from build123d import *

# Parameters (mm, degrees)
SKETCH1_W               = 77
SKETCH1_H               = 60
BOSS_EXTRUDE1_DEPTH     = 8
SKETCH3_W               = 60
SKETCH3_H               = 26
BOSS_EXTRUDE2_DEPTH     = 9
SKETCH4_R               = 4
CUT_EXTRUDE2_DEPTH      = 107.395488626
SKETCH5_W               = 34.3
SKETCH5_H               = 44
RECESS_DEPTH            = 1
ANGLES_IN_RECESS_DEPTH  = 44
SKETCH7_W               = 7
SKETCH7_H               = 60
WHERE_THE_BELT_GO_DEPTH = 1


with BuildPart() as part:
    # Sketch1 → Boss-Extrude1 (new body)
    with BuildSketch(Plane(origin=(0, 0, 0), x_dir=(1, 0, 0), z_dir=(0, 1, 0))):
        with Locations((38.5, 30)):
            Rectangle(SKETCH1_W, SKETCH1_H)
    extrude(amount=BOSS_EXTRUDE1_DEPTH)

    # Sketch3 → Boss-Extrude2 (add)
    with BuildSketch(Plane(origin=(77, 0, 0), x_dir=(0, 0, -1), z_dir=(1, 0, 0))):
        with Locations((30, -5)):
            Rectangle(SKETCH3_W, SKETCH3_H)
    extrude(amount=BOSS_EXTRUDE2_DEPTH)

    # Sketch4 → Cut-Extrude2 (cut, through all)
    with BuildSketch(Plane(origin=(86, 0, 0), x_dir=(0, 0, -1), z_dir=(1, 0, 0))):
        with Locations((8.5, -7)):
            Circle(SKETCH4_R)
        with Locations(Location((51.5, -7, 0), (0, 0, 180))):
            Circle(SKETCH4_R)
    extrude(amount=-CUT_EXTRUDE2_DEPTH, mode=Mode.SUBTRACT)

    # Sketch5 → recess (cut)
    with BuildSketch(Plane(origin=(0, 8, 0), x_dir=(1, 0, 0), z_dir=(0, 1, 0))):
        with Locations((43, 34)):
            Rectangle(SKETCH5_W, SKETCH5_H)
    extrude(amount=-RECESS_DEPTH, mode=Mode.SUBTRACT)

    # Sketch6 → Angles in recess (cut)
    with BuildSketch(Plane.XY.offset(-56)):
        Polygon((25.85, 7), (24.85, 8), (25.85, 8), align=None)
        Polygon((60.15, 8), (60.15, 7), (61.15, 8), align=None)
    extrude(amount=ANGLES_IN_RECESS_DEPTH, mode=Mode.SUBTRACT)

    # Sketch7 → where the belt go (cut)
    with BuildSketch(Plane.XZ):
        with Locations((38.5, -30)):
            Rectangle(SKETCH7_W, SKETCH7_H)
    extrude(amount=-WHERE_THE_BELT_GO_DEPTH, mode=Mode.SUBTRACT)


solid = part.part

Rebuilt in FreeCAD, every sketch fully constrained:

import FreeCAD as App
import Part
import Sketcher
from FreeCAD import Vector
Q = App.Units.Quantity


def add_polygon(sketch, points):
    """Adds a closed chain of lines whose ends are joined by coincident constraints."""
    first, n = sketch.GeometryCount, len(points)
    for a, b in zip(points, points[1:] + points[:1]):
        sketch.addGeometry(Part.LineSegment(App.Vector(*a, 0), App.Vector(*b, 0)), False)
    for i in range(n):
        sketch.addConstraint(Sketcher.Constraint("Coincident", first + i, 2, first + (i + 1) % n, 1))

doc = App.newDocument("Part")
body = doc.addObject("PartDesign::Body", "Body")

# Sketch on XZ plane
sketch1 = body.newObject("Sketcher::SketchObject", "Sketch")
sketch1.AttachmentSupport = (doc.getObject("XZ_Plane"), [""])
sketch1.MapMode = "FlatFace"
add_polygon(sketch1, [(0, -60), (0, 0), (77, 0), (77, -60)])  # lines 0-3
sketch1.addConstraint([
    Sketcher.Constraint("Vertical", 0),
    Sketcher.Constraint("Horizontal", 1),
    Sketcher.Constraint("Vertical", 2),
    Sketcher.Constraint("Horizontal", 3),
    Sketcher.Constraint("Coincident", 0, 2, -1, 1),
    Sketcher.Constraint("DistanceX", 1, 1, 1, 2, Q("77 mm")),
    Sketcher.Constraint("DistanceY", 0, 1, 0, 2, Q("60 mm")),
])
pad1 = body.newObject("PartDesign::Pad", "Pad")
pad1.Profile = sketch1
pad1.Length = 8
pad1.Reversed = True

# Sketch on YZ plane
sketch2 = body.newObject("Sketcher::SketchObject", "Sketch001")
sketch2.AttachmentSupport = (doc.getObject("YZ_Plane"), [""])
sketch2.MapMode = "FlatFace"
sketch2.AttachmentOffset = App.Placement(Vector(0, 0, 77), App.Rotation())
add_polygon(sketch2, [(8, 0), (-18, 0), (-18, -60), (8, -60)])  # lines 0-3
sketch2.addConstraint([
    Sketcher.Constraint("Horizontal", 0),
    Sketcher.Constraint("Vertical", 1),
    Sketcher.Constraint("Horizontal", 2),
    Sketcher.Constraint("Vertical", 3),
    Sketcher.Constraint("PointOnObject", 0, 2, -1),
    Sketcher.Constraint("DistanceX", 0, 2, 0, 1, Q("26 mm")),
    Sketcher.Constraint("DistanceY", 1, 2, 1, 1, Q("60 mm")),
    Sketcher.Constraint("DistanceX", 0, 2, -1, 1, Q("18 mm")),
])
pad2 = body.newObject("PartDesign::Pad", "Pad001")
pad2.Profile = sketch2
pad2.Length = 9

# Sketch on YZ plane
sketch3 = body.newObject("Sketcher::SketchObject", "Sketch002")
sketch3.AttachmentSupport = (doc.getObject("YZ_Plane"), [""])
sketch3.MapMode = "FlatFace"
sketch3.AttachmentOffset = App.Placement(Vector(0, 0, 86), App.Rotation())
sketch3.addGeometry([
    Part.Circle(Vector(-7, -8.5, 0), Vector(0, 0, 1), 4),
    Part.Circle(Vector(-7, -51.5, 0), Vector(0, 0, 1), 4),
], False)
sketch3.addConstraint([
    Sketcher.Constraint("Equal", 0, 1),
    Sketcher.Constraint("Vertical", 0, 3, 1, 3),
    Sketcher.Constraint("Diameter", 0, Q("8 mm")),
    Sketcher.Constraint("DistanceX", 0, 3, -1, 1, Q("7 mm")),
    Sketcher.Constraint("DistanceY", 1, 3, 0, 3, Q("43 mm")),
    Sketcher.Constraint("DistanceY", 0, 3, -1, 1, Q("8.5 mm")),
])
pocket1 = body.newObject("PartDesign::Pocket", "Pocket")
pocket1.Profile = sketch3
pocket1.Type = "ThroughAll"

# Sketch on XZ plane
sketch4 = body.newObject("Sketcher::SketchObject", "Sketch003")
sketch4.AttachmentSupport = (doc.getObject("XZ_Plane"), [""])
sketch4.MapMode = "FlatFace"
sketch4.AttachmentOffset = App.Placement(Vector(0, 0, -8), App.Rotation())
add_polygon(sketch4, [(26, -56), (26, -12), (60, -12), (60, -56)])  # lines 0-3
sketch4.addConstraint([
    Sketcher.Constraint("Vertical", 0),
    Sketcher.Constraint("Horizontal", 1),
    Sketcher.Constraint("Vertical", 2),
    Sketcher.Constraint("Horizontal", 3),
    Sketcher.Constraint("DistanceY", 0, 1, 0, 2, Q("44 mm")),
    Sketcher.Constraint("DistanceX", 1, 1, 1, 2, Q("34.3 mm")),
    Sketcher.Constraint("DistanceY", 0, 2, -1, 1, Q("12 mm")),
    Sketcher.Constraint("DistanceX", -1, 1, 0, 2, Q("25.85 mm")),
])
pocket2 = body.newObject("PartDesign::Pocket", "Pocket001")
pocket2.Profile = sketch4
pocket2.Length = 1
pocket2.Reversed = True

# Sketch on XY plane
sketch5 = body.newObject("Sketcher::SketchObject", "Sketch004")
sketch5.AttachmentSupport = (doc.getObject("XY_Plane"), [""])
sketch5.MapMode = "FlatFace"
sketch5.AttachmentOffset = App.Placement(Vector(0, 0, -56), App.Rotation())
add_polygon(sketch5, [(24.9, 8), (25.9, 7), (25.9, 8)])  # lines 0-2
add_polygon(sketch5, [(60.1, 8), (60.1, 7), (61.1, 8)])  # lines 3-5
sketch5.addConstraint([
    Sketcher.Constraint("Vertical", 1),
    Sketcher.Constraint("Horizontal", 2),
    Sketcher.Constraint("Vertical", 3),
    Sketcher.Constraint("Horizontal", 5),
    Sketcher.Constraint("Perpendicular", 0, 4),
    Sketcher.Constraint("Horizontal", 0, 2, 3, 2),
    Sketcher.Constraint("Horizontal", 2, 2, 4, 2),
    Sketcher.Constraint("Equal", 2, 5),
    Sketcher.Constraint("DistanceX", 2, 2, 2, 1, Q("1 mm")),
    Sketcher.Constraint("DistanceY", -1, 1, 0, 2, Q("7 mm")),
    Sketcher.Constraint("DistanceX", 0, 2, 3, 2, Q("34.3 mm")),
    Sketcher.Constraint("DistanceX", -1, 1, 0, 2, Q("25.85 mm")),
])
pocket3 = body.newObject("PartDesign::Pocket", "Pocket002")
pocket3.Profile = sketch5
pocket3.Length = 44
pocket3.Reversed = True

# Sketch on XZ plane
sketch6 = body.newObject("Sketcher::SketchObject", "Sketch005")
sketch6.AttachmentSupport = (doc.getObject("XZ_Plane"), [""])
sketch6.MapMode = "FlatFace"
add_polygon(sketch6, [(35, 0), (35, -60), (42, -60), (42, 0)])  # lines 0-3
sketch6.addConstraint([
    Sketcher.Constraint("Vertical", 0),
    Sketcher.Constraint("Horizontal", 1),
    Sketcher.Constraint("Vertical", 2),
    Sketcher.Constraint("Horizontal", 3),
    Sketcher.Constraint("PointOnObject", 2, 2, -1),
    Sketcher.Constraint("DistanceX", 1, 1, 1, 2, Q("7 mm")),
    Sketcher.Constraint("DistanceY", 0, 2, 0, 1, Q("60 mm")),
    Sketcher.Constraint("DistanceX", -1, 1, 0, 2, Q("35 mm")),
])
pocket4 = body.newObject("PartDesign::Pocket", "Pocket003")
pocket4.Profile = sketch6
pocket4.Length = 1

doc.recompute()
